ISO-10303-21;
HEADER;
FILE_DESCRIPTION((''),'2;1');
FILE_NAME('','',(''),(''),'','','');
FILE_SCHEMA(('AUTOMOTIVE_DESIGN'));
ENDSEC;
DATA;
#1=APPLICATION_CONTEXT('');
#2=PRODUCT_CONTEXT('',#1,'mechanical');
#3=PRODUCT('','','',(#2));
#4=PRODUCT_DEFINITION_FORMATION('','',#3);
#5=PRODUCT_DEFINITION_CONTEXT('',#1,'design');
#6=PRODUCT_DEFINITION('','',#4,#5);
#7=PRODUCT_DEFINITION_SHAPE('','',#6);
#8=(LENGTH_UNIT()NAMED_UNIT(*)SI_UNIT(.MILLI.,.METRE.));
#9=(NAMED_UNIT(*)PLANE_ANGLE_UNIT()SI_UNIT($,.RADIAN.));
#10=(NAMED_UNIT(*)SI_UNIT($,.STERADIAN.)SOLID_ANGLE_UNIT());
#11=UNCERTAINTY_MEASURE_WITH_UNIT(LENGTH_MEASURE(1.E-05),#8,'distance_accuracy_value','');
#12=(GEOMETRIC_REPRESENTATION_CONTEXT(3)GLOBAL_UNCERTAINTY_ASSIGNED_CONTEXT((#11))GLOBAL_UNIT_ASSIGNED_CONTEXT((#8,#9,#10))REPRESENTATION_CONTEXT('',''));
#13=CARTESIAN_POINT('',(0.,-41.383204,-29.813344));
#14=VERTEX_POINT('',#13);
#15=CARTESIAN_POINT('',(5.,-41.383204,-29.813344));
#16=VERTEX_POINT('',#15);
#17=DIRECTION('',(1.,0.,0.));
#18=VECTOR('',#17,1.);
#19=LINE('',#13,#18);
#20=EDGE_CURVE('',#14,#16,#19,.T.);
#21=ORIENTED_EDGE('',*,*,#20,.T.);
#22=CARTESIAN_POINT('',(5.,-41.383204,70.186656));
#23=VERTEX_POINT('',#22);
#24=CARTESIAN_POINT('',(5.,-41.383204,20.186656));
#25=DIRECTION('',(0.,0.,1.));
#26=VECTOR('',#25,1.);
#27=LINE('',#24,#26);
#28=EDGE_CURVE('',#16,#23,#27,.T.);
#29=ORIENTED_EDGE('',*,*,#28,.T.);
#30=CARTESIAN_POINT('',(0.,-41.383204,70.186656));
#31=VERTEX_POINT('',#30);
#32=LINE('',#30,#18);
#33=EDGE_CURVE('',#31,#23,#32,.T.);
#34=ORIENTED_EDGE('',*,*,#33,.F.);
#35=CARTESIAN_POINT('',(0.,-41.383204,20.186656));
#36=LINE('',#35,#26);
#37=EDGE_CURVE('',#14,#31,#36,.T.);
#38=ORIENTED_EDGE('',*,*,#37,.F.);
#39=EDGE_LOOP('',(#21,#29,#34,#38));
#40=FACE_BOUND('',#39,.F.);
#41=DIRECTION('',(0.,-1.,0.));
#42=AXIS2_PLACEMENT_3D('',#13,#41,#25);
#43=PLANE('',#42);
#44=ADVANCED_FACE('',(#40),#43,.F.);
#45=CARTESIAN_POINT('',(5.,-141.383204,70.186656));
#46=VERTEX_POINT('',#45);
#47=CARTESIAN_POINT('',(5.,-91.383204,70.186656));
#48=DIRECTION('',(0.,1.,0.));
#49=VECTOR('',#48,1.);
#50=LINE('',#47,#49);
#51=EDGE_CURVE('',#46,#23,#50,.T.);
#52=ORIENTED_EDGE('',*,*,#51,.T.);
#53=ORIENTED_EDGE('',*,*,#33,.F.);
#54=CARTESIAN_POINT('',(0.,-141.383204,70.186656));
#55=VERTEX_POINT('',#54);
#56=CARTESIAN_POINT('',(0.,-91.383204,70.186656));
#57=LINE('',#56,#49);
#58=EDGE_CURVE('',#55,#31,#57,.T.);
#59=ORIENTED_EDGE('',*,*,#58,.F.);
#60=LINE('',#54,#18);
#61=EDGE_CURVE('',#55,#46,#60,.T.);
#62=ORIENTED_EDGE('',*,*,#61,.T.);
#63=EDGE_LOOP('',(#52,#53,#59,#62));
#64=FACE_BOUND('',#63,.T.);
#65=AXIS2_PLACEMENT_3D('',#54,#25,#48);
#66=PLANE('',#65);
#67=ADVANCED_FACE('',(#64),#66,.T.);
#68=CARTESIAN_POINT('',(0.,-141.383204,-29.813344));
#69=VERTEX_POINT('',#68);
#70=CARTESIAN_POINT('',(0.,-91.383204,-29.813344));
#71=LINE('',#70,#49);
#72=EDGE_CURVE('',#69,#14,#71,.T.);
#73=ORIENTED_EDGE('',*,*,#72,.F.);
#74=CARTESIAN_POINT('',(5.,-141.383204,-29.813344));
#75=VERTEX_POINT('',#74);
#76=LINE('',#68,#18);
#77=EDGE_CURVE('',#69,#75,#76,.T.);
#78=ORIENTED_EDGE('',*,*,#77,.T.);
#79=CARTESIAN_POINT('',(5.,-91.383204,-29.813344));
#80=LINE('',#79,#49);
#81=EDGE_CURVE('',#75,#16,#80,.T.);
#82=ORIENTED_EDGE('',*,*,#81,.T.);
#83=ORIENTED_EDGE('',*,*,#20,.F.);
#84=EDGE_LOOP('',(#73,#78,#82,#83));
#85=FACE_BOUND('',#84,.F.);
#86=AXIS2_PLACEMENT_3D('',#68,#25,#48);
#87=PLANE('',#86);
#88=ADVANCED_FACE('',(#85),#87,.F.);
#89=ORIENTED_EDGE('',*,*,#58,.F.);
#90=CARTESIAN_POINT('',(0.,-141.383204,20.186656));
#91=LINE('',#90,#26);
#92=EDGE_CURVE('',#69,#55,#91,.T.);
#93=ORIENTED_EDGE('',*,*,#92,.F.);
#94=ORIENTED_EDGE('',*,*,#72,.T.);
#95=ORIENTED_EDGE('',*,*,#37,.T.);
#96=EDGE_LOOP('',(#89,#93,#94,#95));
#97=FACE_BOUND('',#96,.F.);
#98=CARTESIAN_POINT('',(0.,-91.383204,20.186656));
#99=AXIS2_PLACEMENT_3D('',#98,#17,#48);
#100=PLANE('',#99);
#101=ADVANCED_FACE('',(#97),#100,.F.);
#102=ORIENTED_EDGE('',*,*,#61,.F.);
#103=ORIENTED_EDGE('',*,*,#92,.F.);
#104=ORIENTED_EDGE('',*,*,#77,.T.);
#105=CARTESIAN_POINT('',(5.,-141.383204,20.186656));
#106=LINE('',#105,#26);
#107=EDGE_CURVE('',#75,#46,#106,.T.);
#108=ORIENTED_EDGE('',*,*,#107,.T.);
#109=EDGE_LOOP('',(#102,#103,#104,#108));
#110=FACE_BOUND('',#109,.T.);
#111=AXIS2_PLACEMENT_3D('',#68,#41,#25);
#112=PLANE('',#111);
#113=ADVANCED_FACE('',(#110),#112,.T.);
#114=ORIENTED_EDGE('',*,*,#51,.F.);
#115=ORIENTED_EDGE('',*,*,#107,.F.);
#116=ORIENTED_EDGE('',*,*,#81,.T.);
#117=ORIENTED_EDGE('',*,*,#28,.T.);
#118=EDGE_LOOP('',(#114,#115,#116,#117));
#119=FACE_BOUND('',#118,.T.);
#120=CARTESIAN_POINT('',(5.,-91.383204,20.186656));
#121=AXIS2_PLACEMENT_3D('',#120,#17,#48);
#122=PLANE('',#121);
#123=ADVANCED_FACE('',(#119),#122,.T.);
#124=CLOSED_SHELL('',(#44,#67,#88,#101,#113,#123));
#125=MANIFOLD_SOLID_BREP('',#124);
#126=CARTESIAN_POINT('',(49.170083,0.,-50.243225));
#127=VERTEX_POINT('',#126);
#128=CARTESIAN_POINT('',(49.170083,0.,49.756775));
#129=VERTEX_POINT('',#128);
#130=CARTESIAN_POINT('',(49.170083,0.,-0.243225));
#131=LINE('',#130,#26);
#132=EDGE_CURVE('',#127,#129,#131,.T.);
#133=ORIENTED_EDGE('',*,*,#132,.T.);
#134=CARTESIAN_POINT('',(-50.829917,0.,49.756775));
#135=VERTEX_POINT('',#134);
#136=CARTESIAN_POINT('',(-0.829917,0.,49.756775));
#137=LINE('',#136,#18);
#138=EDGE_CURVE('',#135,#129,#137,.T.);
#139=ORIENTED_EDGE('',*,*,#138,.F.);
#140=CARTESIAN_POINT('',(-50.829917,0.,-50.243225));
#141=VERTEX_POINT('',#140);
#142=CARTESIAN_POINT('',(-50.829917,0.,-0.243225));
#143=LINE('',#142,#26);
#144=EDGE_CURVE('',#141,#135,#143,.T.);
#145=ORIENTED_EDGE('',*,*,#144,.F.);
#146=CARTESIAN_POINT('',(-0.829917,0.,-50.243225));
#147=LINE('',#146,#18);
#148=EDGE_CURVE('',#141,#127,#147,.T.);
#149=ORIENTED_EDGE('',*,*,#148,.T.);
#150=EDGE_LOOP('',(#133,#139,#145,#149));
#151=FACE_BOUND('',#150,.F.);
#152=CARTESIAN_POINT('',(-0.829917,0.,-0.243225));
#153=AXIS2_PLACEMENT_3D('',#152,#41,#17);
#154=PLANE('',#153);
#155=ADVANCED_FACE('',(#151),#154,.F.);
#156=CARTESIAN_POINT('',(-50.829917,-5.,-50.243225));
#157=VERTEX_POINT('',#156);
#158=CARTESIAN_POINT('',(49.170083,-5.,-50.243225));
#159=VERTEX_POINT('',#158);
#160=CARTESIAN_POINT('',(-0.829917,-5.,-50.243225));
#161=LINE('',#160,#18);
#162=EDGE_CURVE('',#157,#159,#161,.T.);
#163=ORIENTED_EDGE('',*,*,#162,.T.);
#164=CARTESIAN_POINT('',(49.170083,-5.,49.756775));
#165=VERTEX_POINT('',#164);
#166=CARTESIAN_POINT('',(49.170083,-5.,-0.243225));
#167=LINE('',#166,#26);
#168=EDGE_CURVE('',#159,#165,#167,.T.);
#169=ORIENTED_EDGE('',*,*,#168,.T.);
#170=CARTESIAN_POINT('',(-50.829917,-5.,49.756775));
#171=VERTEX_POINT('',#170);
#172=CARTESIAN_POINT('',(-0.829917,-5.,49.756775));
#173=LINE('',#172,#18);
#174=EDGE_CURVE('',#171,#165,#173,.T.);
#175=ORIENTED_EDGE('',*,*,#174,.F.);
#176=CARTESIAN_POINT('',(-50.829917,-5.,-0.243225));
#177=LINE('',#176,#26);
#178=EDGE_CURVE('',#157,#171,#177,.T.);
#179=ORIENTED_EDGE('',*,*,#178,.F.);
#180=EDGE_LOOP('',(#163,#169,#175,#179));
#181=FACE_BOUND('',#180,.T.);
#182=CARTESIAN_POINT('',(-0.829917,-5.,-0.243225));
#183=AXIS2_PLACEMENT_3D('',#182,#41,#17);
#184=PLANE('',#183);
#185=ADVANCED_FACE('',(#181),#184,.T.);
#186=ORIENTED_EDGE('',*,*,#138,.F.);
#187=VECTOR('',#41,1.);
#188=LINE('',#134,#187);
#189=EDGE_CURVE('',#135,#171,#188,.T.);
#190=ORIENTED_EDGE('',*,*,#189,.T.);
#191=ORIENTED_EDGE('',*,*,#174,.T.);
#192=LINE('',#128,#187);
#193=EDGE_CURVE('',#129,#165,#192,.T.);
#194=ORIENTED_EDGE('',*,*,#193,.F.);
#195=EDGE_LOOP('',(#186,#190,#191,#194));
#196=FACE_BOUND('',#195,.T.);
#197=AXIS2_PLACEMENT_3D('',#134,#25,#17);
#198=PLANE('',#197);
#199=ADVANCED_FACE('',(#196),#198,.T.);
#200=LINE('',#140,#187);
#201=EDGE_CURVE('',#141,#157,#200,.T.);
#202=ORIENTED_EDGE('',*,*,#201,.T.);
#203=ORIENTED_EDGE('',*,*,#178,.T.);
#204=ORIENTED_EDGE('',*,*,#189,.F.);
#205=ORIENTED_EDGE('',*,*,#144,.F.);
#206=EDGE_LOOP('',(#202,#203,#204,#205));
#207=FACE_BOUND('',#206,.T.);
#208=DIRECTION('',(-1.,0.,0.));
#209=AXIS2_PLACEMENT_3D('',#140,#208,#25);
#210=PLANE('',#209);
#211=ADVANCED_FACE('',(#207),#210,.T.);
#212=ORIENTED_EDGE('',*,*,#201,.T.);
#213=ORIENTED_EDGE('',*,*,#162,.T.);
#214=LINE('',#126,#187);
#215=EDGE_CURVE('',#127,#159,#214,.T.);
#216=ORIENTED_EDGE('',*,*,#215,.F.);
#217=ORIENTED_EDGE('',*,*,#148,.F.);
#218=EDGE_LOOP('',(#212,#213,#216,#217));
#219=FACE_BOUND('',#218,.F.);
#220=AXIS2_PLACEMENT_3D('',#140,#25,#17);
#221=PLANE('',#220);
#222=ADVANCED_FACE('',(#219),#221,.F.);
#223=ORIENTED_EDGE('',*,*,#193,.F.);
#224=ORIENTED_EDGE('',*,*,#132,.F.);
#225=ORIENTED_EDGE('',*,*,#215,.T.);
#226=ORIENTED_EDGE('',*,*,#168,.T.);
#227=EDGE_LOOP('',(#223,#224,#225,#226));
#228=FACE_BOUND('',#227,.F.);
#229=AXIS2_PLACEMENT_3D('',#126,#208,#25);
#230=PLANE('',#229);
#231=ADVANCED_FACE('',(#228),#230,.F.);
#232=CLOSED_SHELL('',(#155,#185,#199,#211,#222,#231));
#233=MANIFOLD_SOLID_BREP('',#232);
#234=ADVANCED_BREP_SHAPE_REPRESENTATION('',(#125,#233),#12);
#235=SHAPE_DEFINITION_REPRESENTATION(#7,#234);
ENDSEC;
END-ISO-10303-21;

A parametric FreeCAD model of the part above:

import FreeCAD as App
import Part
import Sketcher

doc = App.newDocument("Part")
body = doc.addObject("PartDesign::Body", "Body")

sketch1 = body.newObject("Sketcher::SketchObject", "Sketch")
sketch1.AttachmentSupport = (doc.getObject("XZ_Plane"), [""])
sketch1.MapMode = "FlatFace"
sketch1.addGeometry([
    Part.LineSegment(App.Vector(-51, 50, 0), App.Vector(-51, -50, 0)),
    Part.LineSegment(App.Vector(-51, -50, 0), App.Vector(49, -50, 0)),
    Part.LineSegment(App.Vector(49, -50, 0), App.Vector(49, 50, 0)),
    Part.LineSegment(App.Vector(49, 50, 0), App.Vector(-51, 50, 0)),
], False)
sketch1.addConstraint([
    Sketcher.Constraint("Coincident", 0, 2, 1, 1),
    Sketcher.Constraint("Coincident", 1, 2, 2, 1),
    Sketcher.Constraint("Coincident", 2, 2, 3, 1),
    Sketcher.Constraint("Coincident", 3, 2, 0, 1),
    Sketcher.Constraint("Vertical", 0),
    Sketcher.Constraint("Horizontal", 1),
    Sketcher.Constraint("Vertical", 2),
    Sketcher.Constraint("Horizontal", 3),
    Sketcher.Constraint("Equal", 3, 0),
    Sketcher.Constraint("DistanceX", 1, 1, 1, 2, 100.0),
    Sketcher.Constraint("DistanceX", 0, 2, -1, 1, 50.829917),
    Sketcher.Constraint("DistanceY", 0, 2, -1, 1, 50.243225),
])
pad1 = body.newObject("PartDesign::Pad", "Pad")
pad1.Profile = sketch1
pad1.Length = 5
body2 = doc.addObject("PartDesign::Body", "Body001")

sketch2 = body2.newObject("Sketcher::SketchObject", "Sketch001")
sketch2.AttachmentSupport = (doc.getObject("YZ_Plane001"), [""])
sketch2.MapMode = "FlatFace"
sketch2.addGeometry([
    Part.LineSegment(App.Vector(-141, 70, 0), App.Vector(-141, -30, 0)),
    Part.LineSegment(App.Vector(-141, -30, 0), App.Vector(-41, -30, 0)),
    Part.LineSegment(App.Vector(-41, -30, 0), App.Vector(-41, 70, 0)),
    Part.LineSegment(App.Vector(-41, 70, 0), App.Vector(-141, 70, 0)),
], False)
sketch2.addConstraint([
    Sketcher.Constraint("Coincident", 0, 2, 1, 1),
    Sketcher.Constraint("Coincident", 1, 2, 2, 1),
    Sketcher.Constraint("Coincident", 2, 2, 3, 1),
    Sketcher.Constraint("Coincident", 3, 2, 0, 1),
    Sketcher.Constraint("Vertical", 0),
    Sketcher.Constraint("Horizontal", 1),
    Sketcher.Constraint("Vertical", 2),
    Sketcher.Constraint("Horizontal", 3),
    Sketcher.Constraint("Equal", 3, 0),
    Sketcher.Constraint("DistanceX", 1, 1, 1, 2, 100.0),
    Sketcher.Constraint("DistanceX", 0, 2, -1, 1, 141.383204),
    Sketcher.Constraint("DistanceY", 0, 2, -1, 1, 29.813344),
])
pad2 = body2.newObject("PartDesign::Pad", "Pad001")
pad2.Profile = sketch2
pad2.Length = 5

doc.recompute()
